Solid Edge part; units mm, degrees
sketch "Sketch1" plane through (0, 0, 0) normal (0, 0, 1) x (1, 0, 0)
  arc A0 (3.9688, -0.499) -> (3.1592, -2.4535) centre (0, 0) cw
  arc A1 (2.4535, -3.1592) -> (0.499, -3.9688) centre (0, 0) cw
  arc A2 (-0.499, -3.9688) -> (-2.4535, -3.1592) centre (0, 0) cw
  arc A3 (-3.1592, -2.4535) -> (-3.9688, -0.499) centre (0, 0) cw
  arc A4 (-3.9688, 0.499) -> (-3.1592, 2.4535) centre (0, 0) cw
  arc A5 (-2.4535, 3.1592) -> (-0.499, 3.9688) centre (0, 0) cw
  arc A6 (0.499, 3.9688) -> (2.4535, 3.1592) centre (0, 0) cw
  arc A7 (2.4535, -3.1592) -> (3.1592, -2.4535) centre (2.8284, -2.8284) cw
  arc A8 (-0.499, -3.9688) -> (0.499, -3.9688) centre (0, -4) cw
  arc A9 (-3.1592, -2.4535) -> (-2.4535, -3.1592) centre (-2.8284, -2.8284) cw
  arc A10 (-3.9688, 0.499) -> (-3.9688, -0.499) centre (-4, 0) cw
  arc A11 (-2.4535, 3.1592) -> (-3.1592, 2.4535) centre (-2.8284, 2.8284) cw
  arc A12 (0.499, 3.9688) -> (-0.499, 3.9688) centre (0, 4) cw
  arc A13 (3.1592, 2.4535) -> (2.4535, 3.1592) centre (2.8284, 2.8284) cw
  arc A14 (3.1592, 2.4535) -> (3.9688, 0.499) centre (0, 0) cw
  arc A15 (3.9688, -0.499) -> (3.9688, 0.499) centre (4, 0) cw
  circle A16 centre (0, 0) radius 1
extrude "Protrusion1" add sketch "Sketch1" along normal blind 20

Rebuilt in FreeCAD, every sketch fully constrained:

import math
import FreeCAD as App
import Part
import Sketcher
from FreeCAD import Vector

doc = App.newDocument("Part")
body = doc.addObject("PartDesign::Body", "Body")

sketch1 = doc.addObject("Sketcher::SketchObject", "Sketch")
body.addObject(sketch1)
sketch1.AttachmentSupport = (doc.XY_Plane, [""])
sketch1.MapMode = "FlatFace"
sketch1.addGeometry([
    Part.ArcOfCircle(Part.Circle(Vector(0, 0, 0), Vector(0, 0, 1), 4), math.radians(-38), math.radians(-7)),
    Part.ArcOfCircle(Part.Circle(Vector(4, 0, 0), Vector(0, 0, 1), 0.5), math.radians(94), math.radians(266)),
    Part.ArcOfCircle(Part.Circle(Vector(0, 0, 0), Vector(0, 0, 1), 4), math.radians(7), math.radians(38)),
    Part.ArcOfCircle(Part.Circle(Vector(2.83, 2.83, 0), Vector(0, 0, 1), 0.5), math.radians(139), math.radians(311)),
    Part.ArcOfCircle(Part.Circle(Vector(0, 0, 0), Vector(0, 0, 1), 4), math.radians(52), math.radians(83)),
    Part.ArcOfCircle(Part.Circle(Vector(0, 4, 0), Vector(0, 0, 1), 0.5), math.radians(-176), math.radians(-4)),
    Part.ArcOfCircle(Part.Circle(Vector(0, 0, 0), Vector(0, 0, 1), 4), math.radians(97), math.radians(128)),
    Part.ArcOfCircle(Part.Circle(Vector(-2.83, 2.83, 0), Vector(0, 0, 1), 0.5), math.radians(-131), math.radians(41)),
    Part.ArcOfCircle(Part.Circle(Vector(0, 0, 0), Vector(0, 0, 1), 4), math.radians(142), math.radians(173)),
    Part.ArcOfCircle(Part.Circle(Vector(-4, 0, 0), Vector(0, 0, 1), 0.5), math.radians(-86), math.radians(86)),
    Part.ArcOfCircle(Part.Circle(Vector(0, 0, 0), Vector(0, 0, 1), 4), math.radians(-173), math.radians(-142)),
    Part.ArcOfCircle(Part.Circle(Vector(-2.83, -2.83, 0), Vector(0, 0, 1), 0.5), math.radians(-41), math.radians(131)),
    Part.ArcOfCircle(Part.Circle(Vector(0, 0, 0), Vector(0, 0, 1), 4), math.radians(-128), math.radians(-97)),
    Part.ArcOfCircle(Part.Circle(Vector(0, -4, 0), Vector(0, 0, 1), 0.5), math.radians(4), math.radians(176)),
    Part.ArcOfCircle(Part.Circle(Vector(0, 0, 0), Vector(0, 0, 1), 4), math.radians(-83), math.radians(-52)),
    Part.ArcOfCircle(Part.Circle(Vector(2.83, -2.83, 0), Vector(0, 0, 1), 0.5), math.radians(49), math.radians(221)),
    Part.Circle(Vector(0, 0, 0), Vector(0, 0, 1), 1),
], False)
sketch1.addConstraint([
    Sketcher.Constraint("Coincident", 0, 2, 1, 2),
    Sketcher.Constraint("Coincident", 1, 1, 2, 1),
    Sketcher.Constraint("Coincident", 2, 2, 3, 2),
    Sketcher.Constraint("Coincident", 3, 1, 4, 1),
    Sketcher.Constraint("Coincident", 4, 2, 5, 2),
    Sketcher.Constraint("Coincident", 5, 1, 6, 1),
    Sketcher.Constraint("Coincident", 6, 2, 7, 2),
    Sketcher.Constraint("Coincident", 7, 1, 8, 1),
    Sketcher.Constraint("Coincident", 8, 2, 9, 2),
    Sketcher.Constraint("Coincident", 9, 1, 10, 1),
    Sketcher.Constraint("Coincident", 10, 2, 11, 2),
    Sketcher.Constraint("Coincident", 11, 1, 12, 1),
    Sketcher.Constraint("Coincident", 12, 2, 13, 2),
    Sketcher.Constraint("Coincident", 13, 1, 14, 1),
    Sketcher.Constraint("Coincident", 14, 2, 15, 2),
    Sketcher.Constraint("Coincident", 15, 1, 0, 1),
    Sketcher.Constraint("Coincident", 0, 3, -1, 1),
    Sketcher.Constraint("Coincident", 2, 3, -1, 1),
    Sketcher.Constraint("Coincident", 4, 3, -1, 1),
    Sketcher.Constraint("Coincident", 6, 3, -1, 1),
    Sketcher.Constraint("Coincident", 8, 3, -1, 1),
    Sketcher.Constraint("Coincident", 10, 3, -1, 1),
    Sketcher.Constraint("Coincident", 12, 3, -1, 1),
    Sketcher.Constraint("Coincident", 14, 3, -1, 1),
    Sketcher.Constraint("Coincident", 16, 3, -1, 1),
    Sketcher.Constraint("Equal", 0, 2),
    Sketcher.Constraint("Equal", 1, 3),
    Sketcher.Constraint("Equal", 2, 4),
    Sketcher.Constraint("Equal", 3, 5),
    Sketcher.Constraint("Equal", 4, 6),
    Sketcher.Constraint("Equal", 5, 7),
    Sketcher.Constraint("Equal", 6, 8),
    Sketcher.Constraint("Equal", 7, 9),
    Sketcher.Constraint("Equal", 8, 10),
    Sketcher.Constraint("Equal", 9, 11),
    Sketcher.Constraint("Equal", 10, 12),
    Sketcher.Constraint("Equal", 11, 13),
    Sketcher.Constraint("Equal", 12, 14),
    Sketcher.Constraint("Equal", 13, 15),
    Sketcher.Constraint("Symmetric", 1, 3, 9, 3, -1, 1),
    Sketcher.Constraint("Symmetric", 3, 3, 11, 3, -1, 1),
    Sketcher.Constraint("Symmetric", 5, 3, 13, 3, -1, 1),
    Sketcher.Constraint("Symmetric", 7, 3, 15, 3, -1, 1),
    Sketcher.Constraint("Symmetric", 3, 3, 7, 3, -2),
    Sketcher.Constraint("PointOnObject", 1, 3, -1),
    Sketcher.Constraint("PointOnObject", 5, 3, -2),
    Sketcher.Constraint("Diameter", 16, 2.0),
    Sketcher.Constraint("Radius", 0, 4.0),
    Sketcher.Constraint("Radius", 1, 0.5),
    Sketcher.Constraint("DistanceX", -1, 1, 1, 3, 4.0),
    Sketcher.Constraint("DistanceY", -1, 1, 5, 3, 4.0),
    Sketcher.Constraint("DistanceY", 2, 2, 3, 3, 0.375),
    Sketcher.Constraint("DistanceX", 3, 1, 3, 3, 0.375),
])
pad1 = doc.addObject("PartDesign::Pad", "Pad")
body.addObject(pad1)
pad1.Profile = sketch1
pad1.Length = 20

doc.recompute()
